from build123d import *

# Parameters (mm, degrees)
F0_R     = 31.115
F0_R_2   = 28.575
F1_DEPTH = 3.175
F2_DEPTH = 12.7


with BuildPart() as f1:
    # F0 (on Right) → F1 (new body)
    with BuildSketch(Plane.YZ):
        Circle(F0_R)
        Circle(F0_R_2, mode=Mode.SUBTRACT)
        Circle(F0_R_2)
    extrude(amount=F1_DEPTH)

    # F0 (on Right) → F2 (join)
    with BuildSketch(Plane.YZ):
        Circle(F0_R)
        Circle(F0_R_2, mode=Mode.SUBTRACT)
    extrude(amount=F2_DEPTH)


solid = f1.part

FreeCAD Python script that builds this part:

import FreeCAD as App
import Part
import Sketcher

V = App.Vector
Q = App.Units.Quantity

doc = App.newDocument("Part")
body = doc.addObject("PartDesign::Body", "Body")

sketch1 = body.newObject("Sketcher::SketchObject", "Sketch")
sketch1.AttachmentSupport = (doc.getObject("YZ_Plane"), [""])
sketch1.MapMode = "FlatFace"
sketch1.addGeometry(Part.Circle(V(0, 0, 0), V(0, 0, 1), 31), False)
sketch1.addConstraint(Sketcher.Constraint("Coincident", 0, 3, -1, 1))
sketch1.addConstraint(Sketcher.Constraint("Diameter", 0, Q("2.45 in")))
pad1 = body.newObject("PartDesign::Pad", "Pad")
pad1.Profile = sketch1
pad1.Length = Q("0.125 in")

sketch2 = body.newObject("Sketcher::SketchObject", "Sketch001")
sketch2.AttachmentSupport = (doc.getObject("YZ_Plane"), [""])
sketch2.MapMode = "FlatFace"
sketch2.addGeometry(Part.Circle(V(0, 0, 0), V(0, 0, 1), 31), False)
sketch2.addGeometry(Part.Circle(V(0, 0, 0), V(0, 0, 1), 29), False)
sketch2.addConstraint(Sketcher.Constraint("Coincident", 0, 3, -1, 1))
sketch2.addConstraint(Sketcher.Constraint("Coincident", 1, 3, -1, 1))
sketch2.addConstraint(Sketcher.Constraint("Diameter", 0, Q("2.45 in")))
sketch2.addConstraint(Sketcher.Constraint("Diameter", 1, Q("2.25 in")))
pad2 = body.newObject("PartDesign::Pad", "Pad001")
pad2.Profile = sketch2
pad2.Length = Q("0.5 in")

doc.recompute()
